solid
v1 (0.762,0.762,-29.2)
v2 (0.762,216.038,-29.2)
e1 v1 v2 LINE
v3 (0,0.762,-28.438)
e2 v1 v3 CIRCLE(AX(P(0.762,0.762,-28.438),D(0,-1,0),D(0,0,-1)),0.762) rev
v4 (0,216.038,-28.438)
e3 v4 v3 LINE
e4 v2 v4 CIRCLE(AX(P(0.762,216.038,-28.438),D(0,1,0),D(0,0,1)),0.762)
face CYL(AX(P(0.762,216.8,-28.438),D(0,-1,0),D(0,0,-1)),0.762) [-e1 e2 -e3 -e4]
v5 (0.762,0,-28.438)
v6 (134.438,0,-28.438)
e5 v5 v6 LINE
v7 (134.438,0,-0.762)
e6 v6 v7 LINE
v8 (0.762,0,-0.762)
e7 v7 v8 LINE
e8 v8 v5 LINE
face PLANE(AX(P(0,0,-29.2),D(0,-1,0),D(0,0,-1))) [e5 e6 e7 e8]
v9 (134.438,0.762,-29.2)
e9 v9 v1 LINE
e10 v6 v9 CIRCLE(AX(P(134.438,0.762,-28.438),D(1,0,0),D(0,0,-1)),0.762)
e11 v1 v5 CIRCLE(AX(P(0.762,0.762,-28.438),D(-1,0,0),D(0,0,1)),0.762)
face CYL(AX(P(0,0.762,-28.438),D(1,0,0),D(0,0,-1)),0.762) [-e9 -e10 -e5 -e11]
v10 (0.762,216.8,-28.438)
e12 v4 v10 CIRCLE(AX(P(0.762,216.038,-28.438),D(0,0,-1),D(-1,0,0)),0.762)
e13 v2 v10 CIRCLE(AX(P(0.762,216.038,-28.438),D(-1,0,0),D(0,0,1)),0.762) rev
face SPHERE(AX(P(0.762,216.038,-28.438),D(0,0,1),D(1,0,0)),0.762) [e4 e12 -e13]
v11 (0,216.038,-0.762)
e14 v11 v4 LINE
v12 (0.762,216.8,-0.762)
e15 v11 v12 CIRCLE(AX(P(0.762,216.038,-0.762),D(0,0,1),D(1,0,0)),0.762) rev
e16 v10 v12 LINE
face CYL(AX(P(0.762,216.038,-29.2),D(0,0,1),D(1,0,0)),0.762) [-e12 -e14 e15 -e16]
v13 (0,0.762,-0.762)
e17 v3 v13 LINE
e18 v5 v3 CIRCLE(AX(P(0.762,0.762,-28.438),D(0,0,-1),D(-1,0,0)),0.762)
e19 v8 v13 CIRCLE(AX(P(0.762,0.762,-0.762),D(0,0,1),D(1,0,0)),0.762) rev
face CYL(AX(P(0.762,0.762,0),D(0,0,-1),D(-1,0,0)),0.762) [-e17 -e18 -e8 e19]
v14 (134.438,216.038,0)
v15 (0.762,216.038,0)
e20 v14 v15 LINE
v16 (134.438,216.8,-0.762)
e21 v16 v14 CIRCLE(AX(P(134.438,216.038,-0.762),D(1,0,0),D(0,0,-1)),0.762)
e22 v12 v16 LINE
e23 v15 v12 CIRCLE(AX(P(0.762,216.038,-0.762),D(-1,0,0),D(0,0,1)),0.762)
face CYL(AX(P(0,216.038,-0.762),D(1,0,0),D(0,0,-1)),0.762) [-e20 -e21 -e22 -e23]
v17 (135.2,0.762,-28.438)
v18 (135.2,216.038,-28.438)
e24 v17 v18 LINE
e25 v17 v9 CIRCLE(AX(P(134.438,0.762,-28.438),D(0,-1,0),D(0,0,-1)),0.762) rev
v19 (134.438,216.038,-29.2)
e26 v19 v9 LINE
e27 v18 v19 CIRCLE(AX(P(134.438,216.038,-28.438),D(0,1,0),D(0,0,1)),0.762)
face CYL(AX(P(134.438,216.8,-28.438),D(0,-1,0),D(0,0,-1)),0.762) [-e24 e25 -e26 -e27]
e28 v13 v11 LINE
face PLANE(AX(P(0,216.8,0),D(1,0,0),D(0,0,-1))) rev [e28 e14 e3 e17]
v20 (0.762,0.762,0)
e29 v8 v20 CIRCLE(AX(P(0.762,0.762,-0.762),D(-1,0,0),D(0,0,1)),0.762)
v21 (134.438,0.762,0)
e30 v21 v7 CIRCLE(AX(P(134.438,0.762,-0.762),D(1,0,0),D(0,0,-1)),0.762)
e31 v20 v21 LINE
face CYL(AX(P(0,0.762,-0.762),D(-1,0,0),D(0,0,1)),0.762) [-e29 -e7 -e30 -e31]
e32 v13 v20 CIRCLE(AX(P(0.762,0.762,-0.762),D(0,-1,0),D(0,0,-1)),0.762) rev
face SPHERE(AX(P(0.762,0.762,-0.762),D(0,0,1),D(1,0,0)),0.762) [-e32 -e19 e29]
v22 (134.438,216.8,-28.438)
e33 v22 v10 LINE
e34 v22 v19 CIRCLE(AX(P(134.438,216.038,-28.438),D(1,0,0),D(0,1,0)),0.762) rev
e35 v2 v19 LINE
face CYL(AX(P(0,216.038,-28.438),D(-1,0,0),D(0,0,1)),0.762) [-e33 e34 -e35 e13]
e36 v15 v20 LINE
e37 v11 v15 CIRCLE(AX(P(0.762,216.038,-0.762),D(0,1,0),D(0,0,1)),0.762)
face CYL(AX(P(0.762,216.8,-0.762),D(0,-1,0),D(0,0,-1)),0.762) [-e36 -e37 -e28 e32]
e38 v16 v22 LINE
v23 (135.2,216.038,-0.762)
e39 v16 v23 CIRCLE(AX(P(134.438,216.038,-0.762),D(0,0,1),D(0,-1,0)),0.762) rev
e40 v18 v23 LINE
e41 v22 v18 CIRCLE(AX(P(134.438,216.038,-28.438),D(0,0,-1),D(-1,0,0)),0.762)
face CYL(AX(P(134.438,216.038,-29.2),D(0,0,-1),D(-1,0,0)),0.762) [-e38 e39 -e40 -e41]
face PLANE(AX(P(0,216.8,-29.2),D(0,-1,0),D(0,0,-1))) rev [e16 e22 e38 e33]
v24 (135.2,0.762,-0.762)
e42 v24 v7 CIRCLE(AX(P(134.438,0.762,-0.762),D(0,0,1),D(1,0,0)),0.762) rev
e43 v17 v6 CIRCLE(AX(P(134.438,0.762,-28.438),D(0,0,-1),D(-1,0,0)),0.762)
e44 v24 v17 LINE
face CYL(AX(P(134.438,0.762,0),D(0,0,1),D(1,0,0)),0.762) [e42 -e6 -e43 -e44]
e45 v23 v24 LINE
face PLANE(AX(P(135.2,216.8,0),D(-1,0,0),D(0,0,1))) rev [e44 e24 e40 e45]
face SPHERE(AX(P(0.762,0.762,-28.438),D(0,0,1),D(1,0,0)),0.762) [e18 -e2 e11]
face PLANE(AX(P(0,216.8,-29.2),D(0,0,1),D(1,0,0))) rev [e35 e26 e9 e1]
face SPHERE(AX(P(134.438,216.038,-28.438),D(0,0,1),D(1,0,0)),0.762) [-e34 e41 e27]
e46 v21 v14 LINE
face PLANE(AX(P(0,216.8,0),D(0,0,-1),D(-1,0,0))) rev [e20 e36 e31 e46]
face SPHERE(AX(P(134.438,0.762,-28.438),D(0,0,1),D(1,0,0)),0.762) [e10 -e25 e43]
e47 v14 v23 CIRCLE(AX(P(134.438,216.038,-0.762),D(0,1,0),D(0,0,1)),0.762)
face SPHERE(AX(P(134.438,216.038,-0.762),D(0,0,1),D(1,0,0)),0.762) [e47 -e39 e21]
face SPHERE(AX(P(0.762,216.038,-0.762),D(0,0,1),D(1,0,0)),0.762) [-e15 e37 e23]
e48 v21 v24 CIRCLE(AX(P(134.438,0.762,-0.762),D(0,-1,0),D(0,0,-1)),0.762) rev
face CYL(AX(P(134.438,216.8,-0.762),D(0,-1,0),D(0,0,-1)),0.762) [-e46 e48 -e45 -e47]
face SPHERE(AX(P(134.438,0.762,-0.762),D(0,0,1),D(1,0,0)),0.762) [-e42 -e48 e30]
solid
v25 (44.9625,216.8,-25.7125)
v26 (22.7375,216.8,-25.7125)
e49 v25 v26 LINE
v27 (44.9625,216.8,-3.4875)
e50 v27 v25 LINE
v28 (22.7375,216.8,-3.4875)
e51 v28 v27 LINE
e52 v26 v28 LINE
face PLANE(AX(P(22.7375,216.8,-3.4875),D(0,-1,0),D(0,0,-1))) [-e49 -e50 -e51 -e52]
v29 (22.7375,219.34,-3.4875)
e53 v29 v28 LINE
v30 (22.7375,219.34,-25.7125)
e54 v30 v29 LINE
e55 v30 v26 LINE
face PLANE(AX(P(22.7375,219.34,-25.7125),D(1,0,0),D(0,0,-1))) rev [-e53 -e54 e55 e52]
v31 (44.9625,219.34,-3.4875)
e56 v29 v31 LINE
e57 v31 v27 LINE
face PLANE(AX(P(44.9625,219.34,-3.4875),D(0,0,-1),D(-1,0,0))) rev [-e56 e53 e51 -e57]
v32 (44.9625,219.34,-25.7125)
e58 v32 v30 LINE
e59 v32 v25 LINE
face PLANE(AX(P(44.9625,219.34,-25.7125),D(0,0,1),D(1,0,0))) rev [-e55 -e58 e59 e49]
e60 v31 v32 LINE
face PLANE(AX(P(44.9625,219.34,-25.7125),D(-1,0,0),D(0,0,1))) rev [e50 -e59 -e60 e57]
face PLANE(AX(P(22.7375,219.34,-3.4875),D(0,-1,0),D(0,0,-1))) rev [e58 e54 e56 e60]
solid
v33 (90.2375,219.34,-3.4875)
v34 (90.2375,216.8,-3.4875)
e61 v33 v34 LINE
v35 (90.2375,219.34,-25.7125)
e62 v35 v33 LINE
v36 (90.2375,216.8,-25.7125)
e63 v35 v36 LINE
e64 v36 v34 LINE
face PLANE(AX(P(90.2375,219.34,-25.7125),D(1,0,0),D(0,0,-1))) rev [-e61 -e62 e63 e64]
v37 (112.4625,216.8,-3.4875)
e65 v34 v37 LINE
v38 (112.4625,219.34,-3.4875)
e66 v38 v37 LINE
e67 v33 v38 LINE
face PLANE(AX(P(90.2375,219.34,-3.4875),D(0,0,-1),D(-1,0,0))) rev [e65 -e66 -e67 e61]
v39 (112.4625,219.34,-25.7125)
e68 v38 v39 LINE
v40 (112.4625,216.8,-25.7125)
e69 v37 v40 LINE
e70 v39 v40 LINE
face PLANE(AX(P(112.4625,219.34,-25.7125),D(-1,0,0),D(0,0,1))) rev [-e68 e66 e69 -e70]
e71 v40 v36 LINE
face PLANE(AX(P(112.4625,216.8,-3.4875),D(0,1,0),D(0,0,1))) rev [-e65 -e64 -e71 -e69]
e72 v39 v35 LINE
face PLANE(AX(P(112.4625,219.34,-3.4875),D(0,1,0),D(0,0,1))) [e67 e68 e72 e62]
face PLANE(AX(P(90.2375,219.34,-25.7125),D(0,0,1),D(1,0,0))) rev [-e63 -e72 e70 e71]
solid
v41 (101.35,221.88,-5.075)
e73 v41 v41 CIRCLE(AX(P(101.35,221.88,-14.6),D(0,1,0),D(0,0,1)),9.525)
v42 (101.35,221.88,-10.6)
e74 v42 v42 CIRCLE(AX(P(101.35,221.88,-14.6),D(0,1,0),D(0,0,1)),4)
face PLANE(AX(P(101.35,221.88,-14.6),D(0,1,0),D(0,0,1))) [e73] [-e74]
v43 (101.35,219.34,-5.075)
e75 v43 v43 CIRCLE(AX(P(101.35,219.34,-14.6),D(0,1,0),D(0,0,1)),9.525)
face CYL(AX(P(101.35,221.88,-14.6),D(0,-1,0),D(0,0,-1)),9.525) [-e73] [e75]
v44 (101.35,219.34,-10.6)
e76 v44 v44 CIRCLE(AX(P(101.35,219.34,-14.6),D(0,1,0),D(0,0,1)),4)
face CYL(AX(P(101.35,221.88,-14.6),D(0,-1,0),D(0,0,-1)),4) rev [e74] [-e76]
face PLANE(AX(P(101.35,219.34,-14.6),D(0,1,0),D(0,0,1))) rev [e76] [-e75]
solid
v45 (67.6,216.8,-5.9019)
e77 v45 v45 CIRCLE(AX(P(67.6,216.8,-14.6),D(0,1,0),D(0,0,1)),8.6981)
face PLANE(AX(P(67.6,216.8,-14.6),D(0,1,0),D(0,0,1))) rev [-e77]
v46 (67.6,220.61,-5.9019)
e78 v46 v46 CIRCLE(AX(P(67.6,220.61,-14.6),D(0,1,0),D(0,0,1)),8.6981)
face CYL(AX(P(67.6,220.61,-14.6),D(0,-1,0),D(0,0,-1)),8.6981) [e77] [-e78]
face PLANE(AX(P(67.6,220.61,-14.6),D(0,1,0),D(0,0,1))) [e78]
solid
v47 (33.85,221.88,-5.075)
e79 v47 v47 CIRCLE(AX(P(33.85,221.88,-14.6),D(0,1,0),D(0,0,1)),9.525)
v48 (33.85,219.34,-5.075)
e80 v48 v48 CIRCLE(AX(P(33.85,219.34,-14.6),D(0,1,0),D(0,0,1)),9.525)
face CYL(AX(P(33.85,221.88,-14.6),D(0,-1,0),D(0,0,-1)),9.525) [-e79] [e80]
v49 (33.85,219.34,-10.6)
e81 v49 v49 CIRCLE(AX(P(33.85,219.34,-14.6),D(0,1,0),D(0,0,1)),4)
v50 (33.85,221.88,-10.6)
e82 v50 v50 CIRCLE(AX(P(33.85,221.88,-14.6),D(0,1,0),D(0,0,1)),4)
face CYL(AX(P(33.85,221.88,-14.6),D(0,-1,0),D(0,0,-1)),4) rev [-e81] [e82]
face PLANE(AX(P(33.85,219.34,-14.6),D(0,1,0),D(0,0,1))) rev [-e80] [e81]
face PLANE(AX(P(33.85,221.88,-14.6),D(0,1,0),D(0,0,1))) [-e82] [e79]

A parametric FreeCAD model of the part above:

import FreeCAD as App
import Part
import Sketcher

V = App.Vector
Q = App.Units.Quantity


def add_polygon(sketch, points):
    """Adds a closed chain of lines whose ends are joined by coincident constraints."""
    first, n = sketch.GeometryCount, len(points)
    for a, b in zip(points, points[1:] + points[:1]):
        sketch.addGeometry(Part.LineSegment(App.Vector(*a, 0), App.Vector(*b, 0)), False)
    for i in range(n):
        sketch.addConstraint(Sketcher.Constraint("Coincident", first + i, 2, first + (i + 1) % n, 1))

doc = App.newDocument("Part")
body = doc.addObject("PartDesign::Body", "Body")

# Sketch on XZ plane
sketch1 = doc.addObject("Sketcher::SketchObject", "Sketch")
body.addObject(sketch1)
sketch1.AttachmentSupport = (doc.XZ_Plane, [""])
sketch1.MapMode = "FlatFace"
add_polygon(sketch1, [(0, -29), (0, 0), (135, 0), (135, -29)])  # lines 0-3
sketch1.addConstraint([
    Sketcher.Constraint("Vertical", 0),
    Sketcher.Constraint("Horizontal", 1),
    Sketcher.Constraint("Vertical", 2),
    Sketcher.Constraint("Horizontal", 3),
    Sketcher.Constraint("Coincident", 0, 2, -1, 1),
    Sketcher.Constraint("DistanceX", 1, 1, 1, 2, 135.2),
    Sketcher.Constraint("DistanceY", 0, 1, 0, 2, 29.2),
])
pad1 = doc.addObject("PartDesign::Pad", "Pad")
body.addObject(pad1)
pad1.Profile = sketch1
pad1.Length = 216.8
pad1.Reversed = True
doc.recompute()

fillet = doc.addObject("PartDesign::Fillet", "Fillet")
body.addObject(fillet)
fillet.Base = (pad1, ["Edge1"])
fillet.UseAllEdges = True
fillet.Radius = Q("0.03 in")
body2 = doc.addObject("PartDesign::Body", "Body001")

# Sketch on XZ plane
sketch2 = doc.addObject("Sketcher::SketchObject", "Sketch001")
body2.addObject(sketch2)
sketch2.AttachmentSupport = (doc.getObject("XZ_Plane001"), [""])
sketch2.MapMode = "FlatFace"
sketch2.AttachmentOffset = App.Placement(V(0, 0, -216.8), App.Rotation())
add_polygon(sketch2, [(23, -26), (23, -3), (45, -3), (45, -26)])  # lines 0-3
sketch2.addConstraint([
    Sketcher.Constraint("Vertical", 0),
    Sketcher.Constraint("Horizontal", 1),
    Sketcher.Constraint("Vertical", 2),
    Sketcher.Constraint("Horizontal", 3),
    Sketcher.Constraint("Equal", 3, 0),
    Sketcher.Constraint("DistanceX", 1, 1, 1, 2, Q("0.875 in")),
    Sketcher.Constraint("DistanceX", -1, 1, 0, 2, 22.7375),
    Sketcher.Constraint("DistanceY", 0, 2, -1, 1, 3.4875),
])
pad2 = doc.addObject("PartDesign::Pad", "Pad001")
body2.addObject(pad2)
pad2.Profile = sketch2
pad2.Length = Q("0.1 in")
pad2.Reversed = True
body3 = doc.addObject("PartDesign::Body", "Body002")

# Sketch on XZ plane
sketch3 = doc.addObject("Sketcher::SketchObject", "Sketch002")
body3.addObject(sketch3)
sketch3.AttachmentSupport = (doc.getObject("XZ_Plane002"), [""])
sketch3.MapMode = "FlatFace"
sketch3.AttachmentOffset = App.Placement(V(0, 0, -216.8), App.Rotation())
add_polygon(sketch3, [(90, -26), (90, -3), (112, -3), (112, -26)])  # lines 0-3
sketch3.addConstraint([
    Sketcher.Constraint("Vertical", 0),
    Sketcher.Constraint("Horizontal", 1),
    Sketcher.Constraint("Vertical", 2),
    Sketcher.Constraint("Horizontal", 3),
    Sketcher.Constraint("Equal", 3, 0),
    Sketcher.Constraint("DistanceX", 1, 1, 1, 2, Q("0.875 in")),
    Sketcher.Constraint("DistanceX", -1, 1, 0, 2, 90.2375),
    Sketcher.Constraint("DistanceY", 0, 2, -1, 1, 3.4875),
])
pad3 = doc.addObject("PartDesign::Pad", "Pad002")
body3.addObject(pad3)
pad3.Profile = sketch3
pad3.Length = Q("0.1 in")
pad3.Reversed = True
body4 = doc.addObject("PartDesign::Body", "Body003")

# Sketch on XZ plane
sketch4 = doc.addObject("Sketcher::SketchObject", "Sketch003")
body4.addObject(sketch4)
sketch4.AttachmentSupport = (doc.getObject("XZ_Plane003"), [""])
sketch4.MapMode = "FlatFace"
sketch4.AttachmentOffset = App.Placement(V(0, 0, -219.34), App.Rotation())
sketch4.addGeometry([
    Part.Circle(V(33.9, -14.6, 0), V(0, 0, 1), 9.5),
    Part.Circle(V(33.9, -14.6, 0), V(0, 0, 1), 4),
], False)
sketch4.addConstraint([
    Sketcher.Constraint("Coincident", 1, 3, 0, 3),
    Sketcher.Constraint("Diameter", 0, Q("0.75 in")),
    Sketcher.Constraint("Diameter", 1, 8.0),
    Sketcher.Constraint("DistanceX", -1, 1, 0, 3, 33.85),
    Sketcher.Constraint("DistanceY", 0, 3, -1, 1, 14.6),
])
pad4 = doc.addObject("PartDesign::Pad", "Pad003")
body4.addObject(pad4)
pad4.Profile = sketch4
pad4.Length = Q("0.1 in")
pad4.Reversed = True
body5 = doc.addObject("PartDesign::Body", "Body004")

# Sketch on XZ plane
sketch5 = doc.addObject("Sketcher::SketchObject", "Sketch004")
body5.addObject(sketch5)
sketch5.AttachmentSupport = (doc.getObject("XZ_Plane004"), [""])
sketch5.MapMode = "FlatFace"
sketch5.AttachmentOffset = App.Placement(V(0, 0, -219.34), App.Rotation())
sketch5.addGeometry([
    Part.Circle(V(101.3, -14.6, 0), V(0, 0, 1), 9.5),
    Part.Circle(V(101.3, -14.6, 0), V(0, 0, 1), 4),
], False)
sketch5.addConstraint([
    Sketcher.Constraint("Coincident", 1, 3, 0, 3),
    Sketcher.Constraint("Diameter", 0, Q("0.75 in")),
    Sketcher.Constraint("Diameter", 1, 8.0),
    Sketcher.Constraint("DistanceX", -1, 1, 0, 3, 101.35),
    Sketcher.Constraint("DistanceY", 0, 3, -1, 1, 14.6),
])
pad5 = doc.addObject("PartDesign::Pad", "Pad004")
body5.addObject(pad5)
pad5.Profile = sketch5
pad5.Length = Q("0.1 in")
pad5.Reversed = True
body6 = doc.addObject("PartDesign::Body", "Body005")

# Sketch on XZ plane
sketch6 = doc.addObject("Sketcher::SketchObject", "Sketch005")
body6.addObject(sketch6)
sketch6.AttachmentSupport = (doc.getObject("XZ_Plane005"), [""])
sketch6.MapMode = "FlatFace"
sketch6.AttachmentOffset = App.Placement(V(0, 0, -216.8), App.Rotation())
sketch6.addGeometry(Part.Circle(V(68, -15, 0), V(0, 0, 1), 9), False)
sketch6.addConstraint([
    Sketcher.Constraint("Diameter", 0, 17.3962),
    Sketcher.Constraint("DistanceX", -1, 1, 0, 3, 67.6),
    Sketcher.Constraint("DistanceY", 0, 3, -1, 1, 14.6),
])
pad6 = doc.addObject("PartDesign::Pad", "Pad005")
body6.addObject(pad6)
pad6.Profile = sketch6
pad6.Length = Q("0.15 in")
pad6.Reversed = True

doc.recompute()
